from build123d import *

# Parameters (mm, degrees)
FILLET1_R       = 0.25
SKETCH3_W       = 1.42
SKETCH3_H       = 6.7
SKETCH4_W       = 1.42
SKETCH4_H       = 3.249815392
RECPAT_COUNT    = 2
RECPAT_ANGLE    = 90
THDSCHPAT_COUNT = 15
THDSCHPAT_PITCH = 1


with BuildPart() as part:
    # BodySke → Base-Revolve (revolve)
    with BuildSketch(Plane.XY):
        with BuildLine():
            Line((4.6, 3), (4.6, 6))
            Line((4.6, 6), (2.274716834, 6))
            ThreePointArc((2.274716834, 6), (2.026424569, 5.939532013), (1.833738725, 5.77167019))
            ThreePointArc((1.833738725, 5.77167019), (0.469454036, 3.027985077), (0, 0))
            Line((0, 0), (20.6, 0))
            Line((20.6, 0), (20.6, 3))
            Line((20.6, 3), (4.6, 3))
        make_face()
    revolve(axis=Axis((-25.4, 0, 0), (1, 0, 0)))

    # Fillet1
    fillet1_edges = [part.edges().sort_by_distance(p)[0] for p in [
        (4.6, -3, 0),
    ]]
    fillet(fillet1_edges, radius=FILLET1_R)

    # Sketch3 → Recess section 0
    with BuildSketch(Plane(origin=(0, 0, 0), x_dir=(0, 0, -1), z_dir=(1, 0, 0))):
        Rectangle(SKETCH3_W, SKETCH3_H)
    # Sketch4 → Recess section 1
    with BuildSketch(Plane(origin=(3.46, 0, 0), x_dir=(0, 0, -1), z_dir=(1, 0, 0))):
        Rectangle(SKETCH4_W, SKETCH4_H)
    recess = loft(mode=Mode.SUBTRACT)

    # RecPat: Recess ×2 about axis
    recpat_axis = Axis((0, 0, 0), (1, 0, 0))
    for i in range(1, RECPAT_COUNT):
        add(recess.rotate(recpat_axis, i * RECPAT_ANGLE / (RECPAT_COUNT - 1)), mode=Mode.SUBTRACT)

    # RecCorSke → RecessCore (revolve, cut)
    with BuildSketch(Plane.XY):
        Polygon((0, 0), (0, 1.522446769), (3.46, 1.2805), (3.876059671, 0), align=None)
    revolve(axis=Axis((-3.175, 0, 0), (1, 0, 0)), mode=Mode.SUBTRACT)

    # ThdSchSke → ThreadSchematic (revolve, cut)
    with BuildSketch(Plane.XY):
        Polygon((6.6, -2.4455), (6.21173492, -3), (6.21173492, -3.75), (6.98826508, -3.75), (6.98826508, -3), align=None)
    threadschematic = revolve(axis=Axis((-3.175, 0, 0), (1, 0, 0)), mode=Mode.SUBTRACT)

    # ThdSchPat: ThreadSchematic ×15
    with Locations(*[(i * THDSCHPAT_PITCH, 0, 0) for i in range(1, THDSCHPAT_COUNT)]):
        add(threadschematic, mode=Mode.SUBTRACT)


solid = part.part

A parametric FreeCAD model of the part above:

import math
import FreeCAD as App
import Part
import Sketcher

V = App.Vector
Q = App.Units.Quantity


def edges_at(feature, points):
    """Names of the edges that pass closest to the given points."""
    edges = feature.Shape.Edges
    near = lambda p: min(range(len(edges)), key=lambda i: edges[i].distToShape(Part.Vertex(*p))[0])
    return sorted({f"Edge{near(p) + 1}" for p in points})


def add_polygon(sketch, points):
    """Adds a closed chain of lines whose ends are joined by coincident constraints."""
    first, n = sketch.GeometryCount, len(points)
    for a, b in zip(points, points[1:] + points[:1]):
        sketch.addGeometry(Part.LineSegment(App.Vector(*a, 0), App.Vector(*b, 0)), False)
    for i in range(n):
        sketch.addConstraint(Sketcher.Constraint("Coincident", first + i, 2, first + (i + 1) % n, 1))

doc = App.newDocument("Part")
body = doc.addObject("PartDesign::Body", "Body")

sketch1 = body.newObject("Sketcher::SketchObject", "Sketch")
sketch1.AttachmentSupport = (doc.getObject("XY_Plane"), [""])
sketch1.MapMode = "FlatFace"
sketch1.addGeometry(Part.LineSegment(V(4.6, 3, 0), V(4.6, 6, 0)), False)
sketch1.addGeometry(Part.LineSegment(V(4.6, 6, 0), V(2.27, 6, 0)), False)
sketch1.addGeometry(Part.ArcOfCircle(Part.Circle(V(2.27, 5.46, 0), V(0, 0, 1), 0.54), math.radians(90), math.radians(145)), False)
sketch1.addGeometry(Part.ArcOfCircle(Part.Circle(V(10, 0, 0), V(0, 0, 1), 10), math.radians(145), math.radians(180)), False)
sketch1.addGeometry(Part.LineSegment(V(0, 0, 0), V(20.6, 0, 0)), False)
sketch1.addGeometry(Part.LineSegment(V(20.6, 0, 0), V(20.6, 3, 0)), False)
sketch1.addGeometry(Part.LineSegment(V(20.6, 3, 0), V(4.6, 3, 0)), False)
sketch1.addConstraint(Sketcher.Constraint("Coincident", 0, 2, 1, 1))
sketch1.addConstraint(Sketcher.Constraint("Tangent", 1, 2, 2, 1))
sketch1.addConstraint(Sketcher.Constraint("Tangent", 2, 2, 3, 1))
sketch1.addConstraint(Sketcher.Constraint("Coincident", 3, 2, 4, 1))
sketch1.addConstraint(Sketcher.Constraint("Coincident", 4, 2, 5, 1))
sketch1.addConstraint(Sketcher.Constraint("Coincident", 5, 2, 6, 1))
sketch1.addConstraint(Sketcher.Constraint("Coincident", 6, 2, 0, 1))
sketch1.addConstraint(Sketcher.Constraint("Vertical", 0))
sketch1.addConstraint(Sketcher.Constraint("Horizontal", 1))
sketch1.addConstraint(Sketcher.Constraint("Horizontal", 4))
sketch1.addConstraint(Sketcher.Constraint("Vertical", 5))
sketch1.addConstraint(Sketcher.Constraint("Horizontal", 6))
sketch1.addConstraint(Sketcher.Constraint("Coincident", 3, 2, -1, 1))
sketch1.addConstraint(Sketcher.Constraint("PointOnObject", 3, 3, -1))
sketch1.addConstraint(Sketcher.Constraint("Equal", 0, 5))
sketch1.addConstraint(Sketcher.Constraint("Radius", 3, 10.0))
sketch1.addConstraint(Sketcher.Constraint("DistanceX", 6, 2, 6, 1, 16.0))
sketch1.addConstraint(Sketcher.Constraint("DistanceY", 0, 1, 0, 2, 3.0))
sketch1.addConstraint(Sketcher.Constraint("Radius", 2, 0.54))
sketch1.addConstraint(Sketcher.Constraint("DistanceX", 4, 1, 4, 2, 20.6))
revolution = body.newObject("PartDesign::Revolution", "Revolution")
revolution.Profile = sketch1
revolution.ReferenceAxis = (sketch1, ["H_Axis"])
revolution.Angle = 360
doc.recompute()

fillet = body.newObject("PartDesign::Fillet", "Fillet")
fillet.Base = (revolution, edges_at(revolution, [(4.6, -3, 0)]))
fillet.Radius = 0.25

sketch2 = body.newObject("Sketcher::SketchObject", "Sketch001")
sketch2.AttachmentSupport = (doc.getObject("YZ_Plane"), [""])
sketch2.MapMode = "FlatFace"
add_polygon(sketch2, [(3.4, 0.7), (-3.4, 0.7), (-3.4, -0.7), (3.4, -0.7)])
sketch2.addConstraint(Sketcher.Constraint("Horizontal", 0))
sketch2.addConstraint(Sketcher.Constraint("Vertical", 1))
sketch2.addConstraint(Sketcher.Constraint("Horizontal", 2))
sketch2.addConstraint(Sketcher.Constraint("Vertical", 3))
sketch2.addConstraint(Sketcher.Constraint("Symmetric", 0, 2, 2, 2, -1, 1))
sketch2.addConstraint(Sketcher.Constraint("DistanceX", 0, 2, 0, 1, 6.7))
sketch2.addConstraint(Sketcher.Constraint("DistanceY", 1, 2, 1, 1, 1.42))

sketch3 = body.newObject("Sketcher::SketchObject", "Sketch002")
sketch3.AttachmentSupport = (doc.getObject("YZ_Plane"), [""])
sketch3.MapMode = "FlatFace"
sketch3.AttachmentOffset = App.Placement(V(0, 0, 3.46), App.Rotation())
add_polygon(sketch3, [(1.6, 0.7), (-1.6, 0.7), (-1.6, -0.7), (1.6, -0.7)])
sketch3.addConstraint(Sketcher.Constraint("Horizontal", 0))
sketch3.addConstraint(Sketcher.Constraint("Vertical", 1))
sketch3.addConstraint(Sketcher.Constraint("Horizontal", 2))
sketch3.addConstraint(Sketcher.Constraint("Vertical", 3))
sketch3.addConstraint(Sketcher.Constraint("Symmetric", 0, 2, 2, 2, -1, 1))
sketch3.addConstraint(Sketcher.Constraint("DistanceY", 1, 2, 1, 1, 1.42))
sketch3.addConstraint(Sketcher.Constraint("DistanceX", 0, 2, 0, 1, 3.249815))

subtractiveloft = body.newObject("PartDesign::SubtractiveLoft", "SubtractiveLoft")
subtractiveloft.Profile = sketch2
subtractiveloft.Sections = [sketch3]
doc.recompute()

polarpattern = body.newObject("PartDesign::PolarPattern", "PolarPattern")
polarpattern.Originals = [subtractiveloft]
polarpattern.Axis = (doc.getObject("X_Axis"), [""])
polarpattern.Angle = 90
polarpattern.Occurrences = 2
body.Tip = polarpattern

sketch4 = body.newObject("Sketcher::SketchObject", "Sketch003")
sketch4.AttachmentSupport = (doc.getObject("XY_Plane"), [""])
sketch4.MapMode = "FlatFace"
add_polygon(sketch4, [(0, 1.5), (0, 0), (3.9, 0), (3.5, 1.3)])
sketch4.addConstraint(Sketcher.Constraint("Vertical", 0))
sketch4.addConstraint(Sketcher.Constraint("Horizontal", 1))
sketch4.addConstraint(Sketcher.Constraint("Coincident", 0, 2, -1, 1))
sketch4.addConstraint(Sketcher.Constraint("Angle", 2, Q("108 deg")))
sketch4.addConstraint(Sketcher.Constraint("Angle", 3, Q("176 deg")))
sketch4.addConstraint(Sketcher.Constraint("DistanceX", -1, 1, 2, 2, 3.46))
sketch4.addConstraint(Sketcher.Constraint("DistanceX", 1, 1, 1, 2, 3.87606))
groove = body.newObject("PartDesign::Groove", "Groove")
groove.Profile = sketch4
groove.ReferenceAxis = (sketch4, ["H_Axis"])
groove.Angle = 360

sketch5 = body.newObject("Sketcher::SketchObject", "Sketch004")
sketch5.AttachmentSupport = (doc.getObject("XY_Plane"), [""])
sketch5.MapMode = "FlatFace"
add_polygon(sketch5, [(6.6, -2.4), (6.2, -3), (6.2, -3.8), (7, -3.8), (7, -3)])
sketch5.addConstraint(Sketcher.Constraint("Vertical", 1))
sketch5.addConstraint(Sketcher.Constraint("Horizontal", 2))
sketch5.addConstraint(Sketcher.Constraint("Vertical", 3))
sketch5.addConstraint(Sketcher.Constraint("Horizontal", 0, 2, 3, 2))
sketch5.addConstraint(Sketcher.Constraint("Equal", 0, 4))
sketch5.addConstraint(Sketcher.Constraint("Angle", 0, Q("-125 deg")))
sketch5.addConstraint(Sketcher.Constraint("DistanceY", 0, 2, -1, 1, 3.0))
sketch5.addConstraint(Sketcher.Constraint("DistanceY", 1, 2, 1, 1, 0.75))
sketch5.addConstraint(Sketcher.Constraint("DistanceX", -1, 1, 4, 2, 6.6))
sketch5.addConstraint(Sketcher.Constraint("DistanceX", 2, 1, 2, 2, 0.77653))
groove2 = body.newObject("PartDesign::Groove", "Groove001")
groove2.Profile = sketch5
groove2.ReferenceAxis = (sketch5, ["H_Axis"])
groove2.Angle = 360
doc.recompute()

linearpattern = body.newObject("PartDesign::LinearPattern", "LinearPattern")
linearpattern.Originals = [groove2]
linearpattern.Direction = (doc.getObject("X_Axis"), [""])
linearpattern.Mode = "offset"
linearpattern.Offset = 1
linearpattern.Occurrences = 15
body.Tip = linearpattern

doc.recompute()
